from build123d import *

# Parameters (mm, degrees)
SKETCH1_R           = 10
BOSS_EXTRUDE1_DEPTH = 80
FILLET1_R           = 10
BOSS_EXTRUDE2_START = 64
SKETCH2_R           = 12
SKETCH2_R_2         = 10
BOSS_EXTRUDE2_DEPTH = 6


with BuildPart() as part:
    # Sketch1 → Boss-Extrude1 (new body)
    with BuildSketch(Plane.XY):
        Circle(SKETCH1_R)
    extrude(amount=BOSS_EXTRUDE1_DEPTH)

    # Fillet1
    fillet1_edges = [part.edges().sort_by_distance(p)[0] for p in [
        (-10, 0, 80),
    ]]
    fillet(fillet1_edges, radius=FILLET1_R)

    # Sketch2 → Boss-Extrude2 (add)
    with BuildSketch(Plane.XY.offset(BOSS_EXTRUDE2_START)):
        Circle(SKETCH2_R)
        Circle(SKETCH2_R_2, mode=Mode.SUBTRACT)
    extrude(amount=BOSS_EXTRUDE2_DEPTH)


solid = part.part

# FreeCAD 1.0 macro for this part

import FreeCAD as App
import Part
import Sketcher
from FreeCAD import Vector


def edges_at(feature, points):
    """Names of the edges that pass closest to the given points."""
    edges = feature.Shape.Edges
    near = lambda p: min(range(len(edges)), key=lambda i: edges[i].distToShape(Part.Vertex(*p))[0])
    return sorted({f"Edge{near(p) + 1}" for p in points})

doc = App.newDocument("Part")
body = doc.addObject("PartDesign::Body", "Body")

# Sketch on XY plane
sketch1 = body.newObject("Sketcher::SketchObject", "Sketch")
sketch1.AttachmentSupport = (doc.getObject("XY_Plane"), [""])
sketch1.MapMode = "FlatFace"
sketch1.addGeometry(Part.Circle(Vector(0, 0, 0), Vector(0, 0, 1), 10), False)
sketch1.addConstraint(Sketcher.Constraint("Coincident", 0, 3, -1, 1))
sketch1.addConstraint(Sketcher.Constraint("Diameter", 0, 20.0))
pad1 = body.newObject("PartDesign::Pad", "Pad")
pad1.Profile = sketch1
pad1.Length = 80
doc.recompute()

fillet = body.newObject("PartDesign::Fillet", "Fillet")
fillet.Base = (pad1, edges_at(pad1, [(-10, 0, 80)]))
fillet.Radius = 10

# Sketch on XY plane
sketch2 = body.newObject("Sketcher::SketchObject", "Sketch001")
sketch2.AttachmentSupport = (doc.getObject("XY_Plane"), [""])
sketch2.MapMode = "FlatFace"
sketch2.AttachmentOffset = App.Placement(Vector(0, 0, 64), App.Rotation())
sketch2.addGeometry(Part.Circle(Vector(0, 0, 0), Vector(0, 0, 1), 12), False)
sketch2.addGeometry(Part.Circle(Vector(0, 0, 0), Vector(0, 0, 1), 10), False)
sketch2.addConstraint(Sketcher.Constraint("Coincident", 0, 3, -1, 1))
sketch2.addConstraint(Sketcher.Constraint("Coincident", 1, 3, -1, 1))
sketch2.addConstraint(Sketcher.Constraint("Diameter", 0, 24.0))
sketch2.addConstraint(Sketcher.Constraint("Diameter", 1, 20.0))
pad2 = body.newObject("PartDesign::Pad", "Pad001")
pad2.Profile = sketch2
pad2.Length = 6

doc.recompute()
